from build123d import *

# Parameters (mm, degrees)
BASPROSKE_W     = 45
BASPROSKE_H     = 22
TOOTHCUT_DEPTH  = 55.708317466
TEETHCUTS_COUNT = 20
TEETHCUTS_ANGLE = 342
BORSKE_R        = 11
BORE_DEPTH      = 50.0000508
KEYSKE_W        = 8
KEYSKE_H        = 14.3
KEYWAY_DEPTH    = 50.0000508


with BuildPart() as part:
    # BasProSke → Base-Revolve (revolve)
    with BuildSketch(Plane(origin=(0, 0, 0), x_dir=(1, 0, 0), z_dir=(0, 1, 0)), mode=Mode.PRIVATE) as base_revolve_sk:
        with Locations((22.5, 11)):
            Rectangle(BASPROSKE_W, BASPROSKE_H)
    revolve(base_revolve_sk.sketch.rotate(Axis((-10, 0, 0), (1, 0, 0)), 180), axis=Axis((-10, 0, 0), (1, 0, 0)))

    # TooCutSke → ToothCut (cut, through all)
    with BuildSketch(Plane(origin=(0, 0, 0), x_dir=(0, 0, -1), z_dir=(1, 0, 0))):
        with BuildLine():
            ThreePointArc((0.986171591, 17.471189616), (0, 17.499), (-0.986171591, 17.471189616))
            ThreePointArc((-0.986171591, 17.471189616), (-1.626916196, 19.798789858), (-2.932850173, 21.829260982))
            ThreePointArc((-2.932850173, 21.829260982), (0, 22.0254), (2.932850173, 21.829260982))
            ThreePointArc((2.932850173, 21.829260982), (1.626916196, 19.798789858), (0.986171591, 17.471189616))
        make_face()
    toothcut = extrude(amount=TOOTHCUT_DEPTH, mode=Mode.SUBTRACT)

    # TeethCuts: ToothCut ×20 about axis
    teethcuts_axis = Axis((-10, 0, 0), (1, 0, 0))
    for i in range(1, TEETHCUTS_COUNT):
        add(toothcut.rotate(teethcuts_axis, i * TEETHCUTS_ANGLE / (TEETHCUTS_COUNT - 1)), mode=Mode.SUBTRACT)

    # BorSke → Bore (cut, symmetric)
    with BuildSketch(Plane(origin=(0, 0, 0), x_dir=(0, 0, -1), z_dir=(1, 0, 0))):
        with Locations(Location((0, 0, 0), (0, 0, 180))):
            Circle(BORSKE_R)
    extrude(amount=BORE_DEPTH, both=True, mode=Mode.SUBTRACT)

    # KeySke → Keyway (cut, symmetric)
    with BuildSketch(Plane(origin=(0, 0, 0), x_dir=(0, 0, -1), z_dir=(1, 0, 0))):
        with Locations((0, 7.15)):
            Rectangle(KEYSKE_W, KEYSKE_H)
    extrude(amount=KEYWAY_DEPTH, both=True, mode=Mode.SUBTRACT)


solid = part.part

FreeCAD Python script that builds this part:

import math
import FreeCAD as App
import Part
import Sketcher

doc = App.newDocument("Part")
body = doc.addObject("PartDesign::Body", "Body")

# Sketch on XZ plane
sketch1 = doc.addObject("Sketcher::SketchObject", "Sketch")
body.addObject(sketch1)
sketch1.AttachmentSupport = (doc.XZ_Plane, [""])
sketch1.MapMode = "FlatFace"
sketch1.addGeometry([
    Part.LineSegment(App.Vector(0, -22, 0), App.Vector(0, 0, 0)),
    Part.LineSegment(App.Vector(0, 0, 0), App.Vector(45, 0, 0)),
    Part.LineSegment(App.Vector(45, 0, 0), App.Vector(45, -22, 0)),
    Part.LineSegment(App.Vector(45, -22, 0), App.Vector(0, -22, 0)),
], False)
sketch1.addConstraint([
    Sketcher.Constraint("Coincident", 0, 2, 1, 1),
    Sketcher.Constraint("Coincident", 1, 2, 2, 1),
    Sketcher.Constraint("Coincident", 2, 2, 3, 1),
    Sketcher.Constraint("Coincident", 3, 2, 0, 1),
    Sketcher.Constraint("Vertical", 0),
    Sketcher.Constraint("Horizontal", 1),
    Sketcher.Constraint("Vertical", 2),
    Sketcher.Constraint("Horizontal", 3),
    Sketcher.Constraint("Coincident", 0, 2, -1, 1),
    Sketcher.Constraint("DistanceX", 1, 1, 1, 2, 45.0),
    Sketcher.Constraint("DistanceY", 0, 1, 0, 2, 22.0),
])
revolution = doc.addObject("PartDesign::Revolution", "Revolution")
body.addObject(revolution)
revolution.Profile = sketch1
revolution.ReferenceAxis = (sketch1, ["H_Axis"])
revolution.Angle = 360

# Sketch on YZ plane
sketch2 = doc.addObject("Sketcher::SketchObject", "Sketch001")
body.addObject(sketch2)
sketch2.AttachmentSupport = (doc.YZ_Plane, [""])
sketch2.MapMode = "FlatFace"
sketch2.addGeometry([
    Part.ArcOfCircle(Part.Circle(App.Vector(0, 0, 0), App.Vector(0, 0, 1), 17.5), math.radians(-3.23), math.radians(3.23)),
    Part.ArcOfCircle(Part.Circle(App.Vector(16.5, -8.9, 0), App.Vector(0, 0, 1), 8), math.radians(49), math.radians(83)),
    Part.ArcOfCircle(Part.Circle(App.Vector(0, 0, 0), App.Vector(0, 0, 1), 22), math.radians(-7.65), math.radians(7.65)),
    Part.ArcOfCircle(Part.Circle(App.Vector(16.5, 8.9, 0), App.Vector(0, 0, 1), 8), math.radians(-83), math.radians(-49)),
], False)
sketch2.addConstraint([
    Sketcher.Constraint("Coincident", 0, 1, 1, 2),
    Sketcher.Constraint("Coincident", 1, 1, 2, 1),
    Sketcher.Constraint("Coincident", 2, 2, 3, 2),
    Sketcher.Constraint("Coincident", 3, 1, 0, 2),
    Sketcher.Constraint("Coincident", 0, 3, -1, 1),
    Sketcher.Constraint("Coincident", 2, 3, -1, 1),
    Sketcher.Constraint("Equal", 1, 3),
    Sketcher.Constraint("Symmetric", 1, 3, 3, 3, -1),
    Sketcher.Constraint("Radius", 1, 8.0),
    Sketcher.Constraint("Radius", 0, 17.499),
    Sketcher.Constraint("Radius", 2, 22.0254),
    Sketcher.Constraint("DistanceY", 1, 1, 2, 2, 5.8657),
    Sketcher.Constraint("DistanceX", -1, 1, 1, 3, 16.536031),
])
pocket1 = doc.addObject("PartDesign::Pocket", "Pocket")
body.addObject(pocket1)
pocket1.Profile = sketch2
pocket1.Type = "ThroughAll"
pocket1.Reversed = True
doc.recompute()

polarpattern = doc.addObject("PartDesign::PolarPattern", "PolarPattern")
body.addObject(polarpattern)
polarpattern.Originals = [pocket1]
polarpattern.Axis = (doc.X_Axis, [""])
polarpattern.Angle = 360
polarpattern.Occurrences = 20
body.Tip = polarpattern

# Sketch on YZ plane
sketch3 = doc.addObject("Sketcher::SketchObject", "Sketch002")
body.addObject(sketch3)
sketch3.AttachmentSupport = (doc.YZ_Plane, [""])
sketch3.MapMode = "FlatFace"
sketch3.addGeometry(Part.Circle(App.Vector(0, 0, 0), App.Vector(0, 0, 1), 11), False)
sketch3.addConstraint([
    Sketcher.Constraint("Coincident", 0, 3, -1, 1),
    Sketcher.Constraint("Diameter", 0, 22.0),
])
pocket2 = doc.addObject("PartDesign::Pocket", "Pocket001")
body.addObject(pocket2)
pocket2.Profile = sketch3
pocket2.Length = 100.000102
pocket2.Midplane = True

# Sketch on YZ plane
sketch4 = doc.addObject("Sketcher::SketchObject", "Sketch003")
body.addObject(sketch4)
sketch4.AttachmentSupport = (doc.YZ_Plane, [""])
sketch4.MapMode = "FlatFace"
sketch4.addGeometry([
    Part.LineSegment(App.Vector(14, 4, 0), App.Vector(0, 4, 0)),
    Part.LineSegment(App.Vector(0, 4, 0), App.Vector(0, -4, 0)),
    Part.LineSegment(App.Vector(0, -4, 0), App.Vector(14, -4, 0)),
    Part.LineSegment(App.Vector(14, -4, 0), App.Vector(14, 4, 0)),
], False)
sketch4.addConstraint([
    Sketcher.Constraint("Coincident", 0, 2, 1, 1),
    Sketcher.Constraint("Coincident", 1, 2, 2, 1),
    Sketcher.Constraint("Coincident", 2, 2, 3, 1),
    Sketcher.Constraint("Coincident", 3, 2, 0, 1),
    Sketcher.Constraint("Horizontal", 0),
    Sketcher.Constraint("Vertical", 1),
    Sketcher.Constraint("Horizontal", 2),
    Sketcher.Constraint("Vertical", 3),
    Sketcher.Constraint("Symmetric", 0, 2, 1, 2, -1, 1),
    Sketcher.Constraint("DistanceY", 1, 2, 1, 1, 8.0),
    Sketcher.Constraint("DistanceX", 0, 2, 0, 1, 14.3),
])
pocket3 = doc.addObject("PartDesign::Pocket", "Pocket002")
body.addObject(pocket3)
pocket3.Profile = sketch4
pocket3.Length = 100.000102
pocket3.Midplane = True

doc.recompute()
